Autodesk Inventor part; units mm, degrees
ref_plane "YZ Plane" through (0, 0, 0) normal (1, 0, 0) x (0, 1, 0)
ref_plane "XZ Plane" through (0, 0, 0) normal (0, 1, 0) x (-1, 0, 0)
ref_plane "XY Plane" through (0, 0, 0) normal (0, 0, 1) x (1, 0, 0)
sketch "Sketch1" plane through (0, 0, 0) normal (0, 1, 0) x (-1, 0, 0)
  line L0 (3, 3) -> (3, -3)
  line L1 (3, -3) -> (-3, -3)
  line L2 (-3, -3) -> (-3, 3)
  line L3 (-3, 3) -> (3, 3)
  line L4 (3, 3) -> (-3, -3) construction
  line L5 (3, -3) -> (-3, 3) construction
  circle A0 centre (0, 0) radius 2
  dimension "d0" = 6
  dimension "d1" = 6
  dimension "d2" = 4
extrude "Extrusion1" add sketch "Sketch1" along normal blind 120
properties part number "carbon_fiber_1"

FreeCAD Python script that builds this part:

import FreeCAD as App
import Part
import Sketcher
from FreeCAD import Vector


def add_polygon(sketch, points):
    """Adds a closed chain of lines whose ends are joined by coincident constraints."""
    first, n = sketch.GeometryCount, len(points)
    for a, b in zip(points, points[1:] + points[:1]):
        sketch.addGeometry(Part.LineSegment(App.Vector(*a, 0), App.Vector(*b, 0)), False)
    for i in range(n):
        sketch.addConstraint(Sketcher.Constraint("Coincident", first + i, 2, first + (i + 1) % n, 1))

doc = App.newDocument("Part")
body = doc.addObject("PartDesign::Body", "Body")

sketch1 = body.newObject("Sketcher::SketchObject", "Sketch")
sketch1.AttachmentSupport = (doc.getObject("XZ_Plane"), [""])
sketch1.MapMode = "FlatFace"
add_polygon(sketch1, [(-3, -3), (-3, 3), (3, 3), (3, -3)])
sketch1.addGeometry(Part.Circle(Vector(0, 0, 0), Vector(0, 0, 1), 2), False)
sketch1.addConstraint(Sketcher.Constraint("Vertical", 0))
sketch1.addConstraint(Sketcher.Constraint("Horizontal", 1))
sketch1.addConstraint(Sketcher.Constraint("Vertical", 2))
sketch1.addConstraint(Sketcher.Constraint("Horizontal", 3))
sketch1.addConstraint(Sketcher.Constraint("Coincident", 4, 3, -1, 1))
sketch1.addConstraint(Sketcher.Constraint("Symmetric", 0, 2, 2, 2, -1, 1))
sketch1.addConstraint(Sketcher.Constraint("Equal", 3, 0))
sketch1.addConstraint(Sketcher.Constraint("Diameter", 4, 4.0))
sketch1.addConstraint(Sketcher.Constraint("DistanceX", 1, 1, 1, 2, 6.0))
pad1 = body.newObject("PartDesign::Pad", "Pad")
pad1.Profile = sketch1
pad1.Length = 120
pad1.Reversed = True

doc.recompute()
